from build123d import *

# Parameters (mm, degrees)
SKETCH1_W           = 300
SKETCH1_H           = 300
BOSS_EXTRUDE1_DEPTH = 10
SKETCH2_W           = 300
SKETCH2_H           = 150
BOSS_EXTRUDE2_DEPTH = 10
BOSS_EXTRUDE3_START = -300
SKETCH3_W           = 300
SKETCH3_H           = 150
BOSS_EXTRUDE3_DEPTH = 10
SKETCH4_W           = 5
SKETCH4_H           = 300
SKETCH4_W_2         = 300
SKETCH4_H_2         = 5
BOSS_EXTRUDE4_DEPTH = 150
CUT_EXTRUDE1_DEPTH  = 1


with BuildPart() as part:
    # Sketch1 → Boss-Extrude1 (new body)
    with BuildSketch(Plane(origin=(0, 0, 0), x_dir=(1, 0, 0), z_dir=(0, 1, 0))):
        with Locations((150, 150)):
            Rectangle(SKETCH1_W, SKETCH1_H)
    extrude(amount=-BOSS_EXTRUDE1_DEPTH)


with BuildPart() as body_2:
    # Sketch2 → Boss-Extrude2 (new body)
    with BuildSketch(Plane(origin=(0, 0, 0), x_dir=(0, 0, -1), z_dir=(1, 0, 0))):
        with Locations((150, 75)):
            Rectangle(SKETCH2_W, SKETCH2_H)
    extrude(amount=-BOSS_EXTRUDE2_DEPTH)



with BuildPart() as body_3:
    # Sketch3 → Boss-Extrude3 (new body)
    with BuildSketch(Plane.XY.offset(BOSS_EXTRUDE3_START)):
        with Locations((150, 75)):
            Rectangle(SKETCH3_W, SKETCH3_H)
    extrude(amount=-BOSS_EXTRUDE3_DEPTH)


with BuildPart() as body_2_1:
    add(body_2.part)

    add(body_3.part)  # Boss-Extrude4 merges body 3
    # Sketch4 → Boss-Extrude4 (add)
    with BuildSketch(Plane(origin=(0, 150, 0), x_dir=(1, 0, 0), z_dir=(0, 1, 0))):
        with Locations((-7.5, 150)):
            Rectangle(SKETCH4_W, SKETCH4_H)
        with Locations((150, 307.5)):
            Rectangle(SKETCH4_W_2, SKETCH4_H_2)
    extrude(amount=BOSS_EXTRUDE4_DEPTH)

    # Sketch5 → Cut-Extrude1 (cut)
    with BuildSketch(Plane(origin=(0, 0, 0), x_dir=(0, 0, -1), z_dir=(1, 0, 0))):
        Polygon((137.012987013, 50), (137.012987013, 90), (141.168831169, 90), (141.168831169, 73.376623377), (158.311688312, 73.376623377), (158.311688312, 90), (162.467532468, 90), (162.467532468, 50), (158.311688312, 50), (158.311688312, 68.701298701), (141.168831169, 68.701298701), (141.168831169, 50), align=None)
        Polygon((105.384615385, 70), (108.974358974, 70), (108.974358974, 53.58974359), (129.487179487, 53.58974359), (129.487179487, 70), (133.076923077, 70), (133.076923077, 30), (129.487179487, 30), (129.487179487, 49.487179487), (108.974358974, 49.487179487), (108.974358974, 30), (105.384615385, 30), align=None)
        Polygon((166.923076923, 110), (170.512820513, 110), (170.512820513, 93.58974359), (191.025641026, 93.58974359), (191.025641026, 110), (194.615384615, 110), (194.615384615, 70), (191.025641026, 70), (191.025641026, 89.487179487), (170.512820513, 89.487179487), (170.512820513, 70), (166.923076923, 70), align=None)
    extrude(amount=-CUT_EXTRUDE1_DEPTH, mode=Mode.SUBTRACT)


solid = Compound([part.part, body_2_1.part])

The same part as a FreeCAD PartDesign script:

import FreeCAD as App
import Part
import Sketcher
from FreeCAD import Vector
Q = App.Units.Quantity

doc = App.newDocument("Part")
body = doc.addObject("PartDesign::Body", "Body")

sketch1 = body.newObject("Sketcher::SketchObject", "Sketch")
sketch1.AttachmentSupport = (doc.getObject("XZ_Plane"), [""])
sketch1.MapMode = "FlatFace"
sketch1.addGeometry(Part.LineSegment(Vector(0, -300, 0), Vector(0, 0, 0)), False)
sketch1.addGeometry(Part.LineSegment(Vector(0, 0, 0), Vector(300, 0, 0)), False)
sketch1.addGeometry(Part.LineSegment(Vector(300, 0, 0), Vector(300, -300, 0)), False)
sketch1.addGeometry(Part.LineSegment(Vector(300, -300, 0), Vector(0, -300, 0)), False)
sketch1.addConstraint(Sketcher.Constraint("Coincident", 0, 2, 1, 1))
sketch1.addConstraint(Sketcher.Constraint("Coincident", 1, 2, 2, 1))
sketch1.addConstraint(Sketcher.Constraint("Coincident", 2, 2, 3, 1))
sketch1.addConstraint(Sketcher.Constraint("Coincident", 3, 2, 0, 1))
sketch1.addConstraint(Sketcher.Constraint("Vertical", 0))
sketch1.addConstraint(Sketcher.Constraint("Horizontal", 1))
sketch1.addConstraint(Sketcher.Constraint("Vertical", 2))
sketch1.addConstraint(Sketcher.Constraint("Horizontal", 3))
sketch1.addConstraint(Sketcher.Constraint("Coincident", 0, 2, -1, 1))
sketch1.addConstraint(Sketcher.Constraint("Equal", 3, 0))
sketch1.addConstraint(Sketcher.Constraint("DistanceX", 1, 1, 1, 2, Q("300 mm")))
pad1 = body.newObject("PartDesign::Pad", "Pad")
pad1.Profile = sketch1
pad1.Length = 10
body2 = doc.addObject("PartDesign::Body", "Body001")

sketch2 = body2.newObject("Sketcher::SketchObject", "Sketch001")
sketch2.AttachmentSupport = (doc.getObject("YZ_Plane001"), [""])
sketch2.MapMode = "FlatFace"
sketch2.addGeometry(Part.LineSegment(Vector(150, 0, 0), Vector(0, 0, 0)), False)
sketch2.addGeometry(Part.LineSegment(Vector(0, 0, 0), Vector(0, -300, 0)), False)
sketch2.addGeometry(Part.LineSegment(Vector(0, -300, 0), Vector(150, -300, 0)), False)
sketch2.addGeometry(Part.LineSegment(Vector(150, -300, 0), Vector(150, 0, 0)), False)
sketch2.addConstraint(Sketcher.Constraint("Coincident", 0, 2, 1, 1))
sketch2.addConstraint(Sketcher.Constraint("Coincident", 1, 2, 2, 1))
sketch2.addConstraint(Sketcher.Constraint("Coincident", 2, 2, 3, 1))
sketch2.addConstraint(Sketcher.Constraint("Coincident", 3, 2, 0, 1))
sketch2.addConstraint(Sketcher.Constraint("Horizontal", 0))
sketch2.addConstraint(Sketcher.Constraint("Vertical", 1))
sketch2.addConstraint(Sketcher.Constraint("Horizontal", 2))
sketch2.addConstraint(Sketcher.Constraint("Vertical", 3))
sketch2.addConstraint(Sketcher.Constraint("Coincident", 0, 2, -1, 1))
sketch2.addConstraint(Sketcher.Constraint("DistanceX", 0, 2, 0, 1, Q("150 mm")))
sketch2.addConstraint(Sketcher.Constraint("DistanceY", 1, 2, 1, 1, Q("300 mm")))
pad2 = body2.newObject("PartDesign::Pad", "Pad001")
pad2.Profile = sketch2
pad2.Length = 10
pad2.Reversed = True
body3 = doc.addObject("PartDesign::Body", "Body002")

sketch3 = body3.newObject("Sketcher::SketchObject", "Sketch002")
sketch3.AttachmentSupport = (doc.getObject("XY_Plane002"), [""])
sketch3.MapMode = "FlatFace"
sketch3.AttachmentOffset = App.Placement(Vector(0, 0, -300), App.Rotation())
sketch3.addGeometry(Part.LineSegment(Vector(0, 150, 0), Vector(0, 0, 0)), False)
sketch3.addGeometry(Part.LineSegment(Vector(0, 0, 0), Vector(300, 0, 0)), False)
sketch3.addGeometry(Part.LineSegment(Vector(300, 0, 0), Vector(300, 150, 0)), False)
sketch3.addGeometry(Part.LineSegment(Vector(300, 150, 0), Vector(0, 150, 0)), False)
sketch3.addConstraint(Sketcher.Constraint("Coincident", 0, 2, 1, 1))
sketch3.addConstraint(Sketcher.Constraint("Coincident", 1, 2, 2, 1))
sketch3.addConstraint(Sketcher.Constraint("Coincident", 2, 2, 3, 1))
sketch3.addConstraint(Sketcher.Constraint("Coincident", 3, 2, 0, 1))
sketch3.addConstraint(Sketcher.Constraint("Vertical", 0))
sketch3.addConstraint(Sketcher.Constraint("Horizontal", 1))
sketch3.addConstraint(Sketcher.Constraint("Vertical", 2))
sketch3.addConstraint(Sketcher.Constraint("Horizontal", 3))
sketch3.addConstraint(Sketcher.Constraint("Coincident", 0, 2, -1, 1))
sketch3.addConstraint(Sketcher.Constraint("DistanceX", 1, 1, 1, 2, Q("300 mm")))
sketch3.addConstraint(Sketcher.Constraint("DistanceY", 0, 2, 0, 1, Q("150 mm")))
pad3 = body3.newObject("PartDesign::Pad", "Pad002")
pad3.Profile = sketch3
pad3.Length = 10
pad3.Reversed = True
body2.AllowCompound = True
doc.recompute()

boolean = body2.newObject("PartDesign::Boolean", "Boolean")
boolean.Type = "Fuse"
boolean.addObjects([body3])

sketch4 = body2.newObject("Sketcher::SketchObject", "Sketch003")
sketch4.AttachmentSupport = (doc.getObject("XZ_Plane001"), [""])
sketch4.MapMode = "FlatFace"
sketch4.AttachmentOffset = App.Placement(Vector(0, 0, -150), App.Rotation())
sketch4.addGeometry(Part.LineSegment(Vector(-10, -300, 0), Vector(-10, 0, 0)), False)
sketch4.addGeometry(Part.LineSegment(Vector(-10, 0, 0), Vector(-5, 0, 0)), False)
sketch4.addGeometry(Part.LineSegment(Vector(-5, 0, 0), Vector(-5, -300, 0)), False)
sketch4.addGeometry(Part.LineSegment(Vector(-5, -300, 0), Vector(-10, -300, 0)), False)
sketch4.addGeometry(Part.LineSegment(Vector(0, -310, 0), Vector(0, -305, 0)), False)
sketch4.addGeometry(Part.LineSegment(Vector(0, -305, 0), Vector(300, -305, 0)), False)
sketch4.addGeometry(Part.LineSegment(Vector(300, -305, 0), Vector(300, -310, 0)), False)
sketch4.addGeometry(Part.LineSegment(Vector(300, -310, 0), Vector(0, -310, 0)), False)
sketch4.addConstraint(Sketcher.Constraint("Coincident", 0, 2, 1, 1))
sketch4.addConstraint(Sketcher.Constraint("Coincident", 1, 2, 2, 1))
sketch4.addConstraint(Sketcher.Constraint("Coincident", 2, 2, 3, 1))
sketch4.addConstraint(Sketcher.Constraint("Coincident", 3, 2, 0, 1))
sketch4.addConstraint(Sketcher.Constraint("Coincident", 4, 2, 5, 1))
sketch4.addConstraint(Sketcher.Constraint("Coincident", 5, 2, 6, 1))
sketch4.addConstraint(Sketcher.Constraint("Coincident", 6, 2, 7, 1))
sketch4.addConstraint(Sketcher.Constraint("Coincident", 7, 2, 4, 1))
sketch4.addConstraint(Sketcher.Constraint("Vertical", 0))
sketch4.addConstraint(Sketcher.Constraint("Horizontal", 1))
sketch4.addConstraint(Sketcher.Constraint("Vertical", 2))
sketch4.addConstraint(Sketcher.Constraint("Horizontal", 3))
sketch4.addConstraint(Sketcher.Constraint("Vertical", 4))
sketch4.addConstraint(Sketcher.Constraint("Horizontal", 5))
sketch4.addConstraint(Sketcher.Constraint("Vertical", 6))
sketch4.addConstraint(Sketcher.Constraint("Horizontal", 7))
sketch4.addConstraint(Sketcher.Constraint("PointOnObject", 0, 2, -1))
sketch4.addConstraint(Sketcher.Constraint("PointOnObject", 4, 2, -2))
sketch4.addConstraint(Sketcher.Constraint("Equal", 7, 0))
sketch4.addConstraint(Sketcher.Constraint("Equal", 3, 4))
sketch4.addConstraint(Sketcher.Constraint("DistanceX", 1, 1, 1, 2, Q("5 mm")))
sketch4.addConstraint(Sketcher.Constraint("DistanceX", 5, 1, 5, 2, Q("300 mm")))
sketch4.addConstraint(Sketcher.Constraint("DistanceX", 0, 2, -1, 1, Q("10 mm")))
sketch4.addConstraint(Sketcher.Constraint("DistanceY", 4, 2, -1, 1, Q("305 mm")))
pad4 = body2.newObject("PartDesign::Pad", "Pad003")
pad4.Profile = sketch4
pad4.Length = 150
pad4.Reversed = True

sketch5 = body2.newObject("Sketcher::SketchObject", "Sketch004")
sketch5.AttachmentSupport = (doc.getObject("YZ_Plane001"), [""])
sketch5.MapMode = "FlatFace"
sketch5.addGeometry(Part.LineSegment(Vector(90, -137, 0), Vector(50, -137, 0)), False)
sketch5.addGeometry(Part.LineSegment(Vector(50, -137, 0), Vector(50, -141.2, 0)), False)
sketch5.addGeometry(Part.LineSegment(Vector(50, -141.2, 0), Vector(68.7, -141.2, 0)), False)
sketch5.addGeometry(Part.LineSegment(Vector(68.7, -141.2, 0), Vector(68.7, -158.3, 0)), False)
sketch5.addGeometry(Part.LineSegment(Vector(68.7, -158.3, 0), Vector(50, -158.3, 0)), False)
sketch5.addGeometry(Part.LineSegment(Vector(50, -158.3, 0), Vector(50, -162.5, 0)), False)
sketch5.addGeometry(Part.LineSegment(Vector(50, -162.5, 0), Vector(90, -162.5, 0)), False)
sketch5.addGeometry(Part.LineSegment(Vector(90, -162.5, 0), Vector(90, -158.3, 0)), False)
sketch5.addGeometry(Part.LineSegment(Vector(90, -158.3, 0), Vector(73.4, -158.3, 0)), False)
sketch5.addGeometry(Part.LineSegment(Vector(73.4, -158.3, 0), Vector(73.4, -141.2, 0)), False)
sketch5.addGeometry(Part.LineSegment(Vector(73.4, -141.2, 0), Vector(90, -141.2, 0)), False)
sketch5.addGeometry(Part.LineSegment(Vector(90, -141.2, 0), Vector(90, -137, 0)), False)
sketch5.addGeometry(Part.LineSegment(Vector(70, -109, 0), Vector(70, -105.4, 0)), False)
sketch5.addGeometry(Part.LineSegment(Vector(70, -105.4, 0), Vector(30, -105.4, 0)), False)
sketch5.addGeometry(Part.LineSegment(Vector(30, -105.4, 0), Vector(30, -109, 0)), False)
sketch5.addGeometry(Part.LineSegment(Vector(30, -109, 0), Vector(49.5, -109, 0)), False)
sketch5.addGeometry(Part.LineSegment(Vector(49.5, -109, 0), Vector(49.5, -129.5, 0)), False)
sketch5.addGeometry(Part.LineSegment(Vector(49.5, -129.5, 0), Vector(30, -129.5, 0)), False)
sketch5.addGeometry(Part.LineSegment(Vector(30, -129.5, 0), Vector(30, -133.1, 0)), False)
sketch5.addGeometry(Part.LineSegment(Vector(30, -133.1, 0), Vector(70, -133.1, 0)), False)
sketch5.addGeometry(Part.LineSegment(Vector(70, -133.1, 0), Vector(70, -129.5, 0)), False)
sketch5.addGeometry(Part.LineSegment(Vector(70, -129.5, 0), Vector(53.6, -129.5, 0)), False)
sketch5.addGeometry(Part.LineSegment(Vector(53.6, -129.5, 0), Vector(53.6, -109, 0)), False)
sketch5.addGeometry(Part.LineSegment(Vector(53.6, -109, 0), Vector(70, -109, 0)), False)
sketch5.addGeometry(Part.LineSegment(Vector(110, -170.5, 0), Vector(110, -166.9, 0)), False)
sketch5.addGeometry(Part.LineSegment(Vector(110, -166.9, 0), Vector(70, -166.9, 0)), False)
sketch5.addGeometry(Part.LineSegment(Vector(70, -166.9, 0), Vector(70, -170.5, 0)), False)
sketch5.addGeometry(Part.LineSegment(Vector(70, -170.5, 0), Vector(89.5, -170.5, 0)), False)
sketch5.addGeometry(Part.LineSegment(Vector(89.5, -170.5, 0), Vector(89.5, -191, 0)), False)
sketch5.addGeometry(Part.LineSegment(Vector(89.5, -191, 0), Vector(70, -191, 0)), False)
sketch5.addGeometry(Part.LineSegment(Vector(70, -191, 0), Vector(70, -194.6, 0)), False)
sketch5.addGeometry(Part.LineSegment(Vector(70, -194.6, 0), Vector(110, -194.6, 0)), False)
sketch5.addGeometry(Part.LineSegment(Vector(110, -194.6, 0), Vector(110, -191, 0)), False)
sketch5.addGeometry(Part.LineSegment(Vector(110, -191, 0), Vector(93.6, -191, 0)), False)
sketch5.addGeometry(Part.LineSegment(Vector(93.6, -191, 0), Vector(93.6, -170.5, 0)), False)
sketch5.addGeometry(Part.LineSegment(Vector(93.6, -170.5, 0), Vector(110, -170.5, 0)), False)
sketch5.addConstraint(Sketcher.Constraint("Coincident", 0, 2, 1, 1))
sketch5.addConstraint(Sketcher.Constraint("Coincident", 1, 2, 2, 1))
sketch5.addConstraint(Sketcher.Constraint("Coincident", 2, 2, 3, 1))
sketch5.addConstraint(Sketcher.Constraint("Coincident", 3, 2, 4, 1))
sketch5.addConstraint(Sketcher.Constraint("Coincident", 4, 2, 5, 1))
sketch5.addConstraint(Sketcher.Constraint("Coincident", 5, 2, 6, 1))
sketch5.addConstraint(Sketcher.Constraint("Coincident", 6, 2, 7, 1))
sketch5.addConstraint(Sketcher.Constraint("Coincident", 7, 2, 8, 1))
sketch5.addConstraint(Sketcher.Constraint("Coincident", 8, 2, 9, 1))
sketch5.addConstraint(Sketcher.Constraint("Coincident", 9, 2, 10, 1))
sketch5.addConstraint(Sketcher.Constraint("Coincident", 10, 2, 11, 1))
sketch5.addConstraint(Sketcher.Constraint("Coincident", 11, 2, 0, 1))
sketch5.addConstraint(Sketcher.Constraint("Coincident", 12, 2, 13, 1))
sketch5.addConstraint(Sketcher.Constraint("Coincident", 13, 2, 14, 1))
sketch5.addConstraint(Sketcher.Constraint("Coincident", 14, 2, 15, 1))
sketch5.addConstraint(Sketcher.Constraint("Coincident", 15, 2, 16, 1))
sketch5.addConstraint(Sketcher.Constraint("Coincident", 16, 2, 17, 1))
sketch5.addConstraint(Sketcher.Constraint("Coincident", 17, 2, 18, 1))
sketch5.addConstraint(Sketcher.Constraint("Coincident", 18, 2, 19, 1))
sketch5.addConstraint(Sketcher.Constraint("Coincident", 19, 2, 20, 1))
sketch5.addConstraint(Sketcher.Constraint("Coincident", 20, 2, 21, 1))
sketch5.addConstraint(Sketcher.Constraint("Coincident", 21, 2, 22, 1))
sketch5.addConstraint(Sketcher.Constraint("Coincident", 22, 2, 23, 1))
sketch5.addConstraint(Sketcher.Constraint("Coincident", 23, 2, 12, 1))
sketch5.addConstraint(Sketcher.Constraint("Coincident", 24, 2, 25, 1))
sketch5.addConstraint(Sketcher.Constraint("Coincident", 25, 2, 26, 1))
sketch5.addConstraint(Sketcher.Constraint("Coincident", 26, 2, 27, 1))
sketch5.addConstraint(Sketcher.Constraint("Coincident", 27, 2, 28, 1))
sketch5.addConstraint(Sketcher.Constraint("Coincident", 28, 2, 29, 1))
sketch5.addConstraint(Sketcher.Constraint("Coincident", 29, 2, 30, 1))
sketch5.addConstraint(Sketcher.Constraint("Coincident", 30, 2, 31, 1))
sketch5.addConstraint(Sketcher.Constraint("Coincident", 31, 2, 32, 1))
sketch5.addConstraint(Sketcher.Constraint("Coincident", 32, 2, 33, 1))
sketch5.addConstraint(Sketcher.Constraint("Coincident", 33, 2, 34, 1))
sketch5.addConstraint(Sketcher.Constraint("Coincident", 34, 2, 35, 1))
sketch5.addConstraint(Sketcher.Constraint("Coincident", 35, 2, 24, 1))
sketch5.addConstraint(Sketcher.Constraint("Horizontal", 0))
sketch5.addConstraint(Sketcher.Constraint("Vertical", 1))
sketch5.addConstraint(Sketcher.Constraint("Horizontal", 2))
sketch5.addConstraint(Sketcher.Constraint("Vertical", 3))
sketch5.addConstraint(Sketcher.Constraint("Horizontal", 4))
sketch5.addConstraint(Sketcher.Constraint("Vertical", 5))
sketch5.addConstraint(Sketcher.Constraint("Horizontal", 6))
sketch5.addConstraint(Sketcher.Constraint("Vertical", 7))
sketch5.addConstraint(Sketcher.Constraint("Horizontal", 8))
sketch5.addConstraint(Sketcher.Constraint("Vertical", 9))
sketch5.addConstraint(Sketcher.Constraint("Horizontal", 10))
sketch5.addConstraint(Sketcher.Constraint("Vertical", 11))
sketch5.addConstraint(Sketcher.Constraint("Vertical", 12))
sketch5.addConstraint(Sketcher.Constraint("Horizontal", 13))
sketch5.addConstraint(Sketcher.Constraint("Vertical", 14))
sketch5.addConstraint(Sketcher.Constraint("Horizontal", 15))
sketch5.addConstraint(Sketcher.Constraint("Vertical", 16))
sketch5.addConstraint(Sketcher.Constraint("Horizontal", 17))
sketch5.addConstraint(Sketcher.Constraint("Vertical", 18))
sketch5.addConstraint(Sketcher.Constraint("Horizontal", 19))
sketch5.addConstraint(Sketcher.Constraint("Vertical", 20))
sketch5.addConstraint(Sketcher.Constraint("Horizontal", 21))
sketch5.addConstraint(Sketcher.Constraint("Vertical", 22))
sketch5.addConstraint(Sketcher.Constraint("Horizontal", 23))
sketch5.addConstraint(Sketcher.Constraint("Vertical", 24))
sketch5.addConstraint(Sketcher.Constraint("Horizontal", 25))
sketch5.addConstraint(Sketcher.Constraint("Vertical", 26))
sketch5.addConstraint(Sketcher.Constraint("Horizontal", 27))
sketch5.addConstraint(Sketcher.Constraint("Vertical", 28))
sketch5.addConstraint(Sketcher.Constraint("Horizontal", 29))
sketch5.addConstraint(Sketcher.Constraint("Vertical", 30))
sketch5.addConstraint(Sketcher.Constraint("Horizontal", 31))
sketch5.addConstraint(Sketcher.Constraint("Vertical", 32))
sketch5.addConstraint(Sketcher.Constraint("Horizontal", 33))
sketch5.addConstraint(Sketcher.Constraint("Vertical", 34))
sketch5.addConstraint(Sketcher.Constraint("Horizontal", 35))
sketch5.addConstraint(Sketcher.Constraint("Horizontal", 4, 2, 7, 2))
sketch5.addConstraint(Sketcher.Constraint("Horizontal", 2, 2, 9, 2))
sketch5.addConstraint(Sketcher.Constraint("Horizontal", 17, 2, 20, 2))
sketch5.addConstraint(Sketcher.Constraint("Horizontal", 15, 2, 22, 2))
sketch5.addConstraint(Sketcher.Constraint("Horizontal", 29, 2, 32, 2))
sketch5.addConstraint(Sketcher.Constraint("Horizontal", 27, 2, 34, 2))
sketch5.addConstraint(Sketcher.Constraint("Vertical", 1, 2, 4, 2))
sketch5.addConstraint(Sketcher.Constraint("Vertical", 7, 2, 10, 2))
sketch5.addConstraint(Sketcher.Constraint("Vertical", 14, 2, 17, 2))
sketch5.addConstraint(Sketcher.Constraint("Vertical", 12, 2, 19, 2))
sketch5.addConstraint(Sketcher.Constraint("Vertical", 23, 2, 25, 2))
sketch5.addConstraint(Sketcher.Constraint("Vertical", 26, 2, 29, 2))
sketch5.addConstraint(Sketcher.Constraint("Vertical", 24, 2, 31, 2))
sketch5.addConstraint(Sketcher.Constraint("Equal", 6, 13))
sketch5.addConstraint(Sketcher.Constraint("Equal", 19, 25))
sketch5.addConstraint(Sketcher.Constraint("Equal", 17, 27))
sketch5.addConstraint(Sketcher.Constraint("Equal", 23, 33))
sketch5.addConstraint(Sketcher.Constraint("Equal", 1, 5))
sketch5.addConstraint(Sketcher.Constraint("Equal", 14, 18))
sketch5.addConstraint(Sketcher.Constraint("Equal", 20, 24))
sketch5.addConstraint(Sketcher.Constraint("Equal", 22, 28))
sketch5.addConstraint(Sketcher.Constraint("Equal", 26, 30))
sketch5.addConstraint(Sketcher.Constraint("DistanceX", 0, 2, 0, 1, Q("40 mm")))
sketch5.addConstraint(Sketcher.Constraint("DistanceX", -1, 1, 0, 2, Q("50 mm")))
sketch5.addConstraint(Sketcher.Constraint("DistanceX", -1, 1, 12, 2, Q("70 mm")))
sketch5.addConstraint(Sketcher.Constraint("DistanceX", 2, 1, 2, 2, Q("18.701299 mm")))
sketch5.addConstraint(Sketcher.Constraint("DistanceX", 15, 1, 15, 2, Q("19.487179 mm")))
sketch5.addConstraint(Sketcher.Constraint("DistanceY", 16, 2, 16, 1, Q("20.512821 mm")))
sketch5.addConstraint(Sketcher.Constraint("DistanceY", 3, 2, 0, 2, Q("21.298701 mm")))
sketch5.addConstraint(Sketcher.Constraint("DistanceX", 8, 2, 8, 1, Q("16.623377 mm")))
sketch5.addConstraint(Sketcher.Constraint("DistanceX", 21, 2, 21, 1, Q("16.410256 mm")))
sketch5.addConstraint(Sketcher.Constraint("DistanceY", 1, 2, 1, 1, Q("4.155844 mm")))
sketch5.addConstraint(Sketcher.Constraint("DistanceY", 12, 1, 12, 2, Q("3.589744 mm")))
sketch5.addConstraint(Sketcher.Constraint("DistanceY", 1, 2, -1, 1, Q("141.168831 mm")))
sketch5.addConstraint(Sketcher.Constraint("DistanceY", 14, 2, -1, 1, Q("108.974359 mm")))
sketch5.addConstraint(Sketcher.Constraint("DistanceY", 26, 2, -1, 1, Q("170.512821 mm")))
pocket1 = body2.newObject("PartDesign::Pocket", "Pocket")
pocket1.Profile = sketch5
pocket1.Length = 1

doc.recompute()
